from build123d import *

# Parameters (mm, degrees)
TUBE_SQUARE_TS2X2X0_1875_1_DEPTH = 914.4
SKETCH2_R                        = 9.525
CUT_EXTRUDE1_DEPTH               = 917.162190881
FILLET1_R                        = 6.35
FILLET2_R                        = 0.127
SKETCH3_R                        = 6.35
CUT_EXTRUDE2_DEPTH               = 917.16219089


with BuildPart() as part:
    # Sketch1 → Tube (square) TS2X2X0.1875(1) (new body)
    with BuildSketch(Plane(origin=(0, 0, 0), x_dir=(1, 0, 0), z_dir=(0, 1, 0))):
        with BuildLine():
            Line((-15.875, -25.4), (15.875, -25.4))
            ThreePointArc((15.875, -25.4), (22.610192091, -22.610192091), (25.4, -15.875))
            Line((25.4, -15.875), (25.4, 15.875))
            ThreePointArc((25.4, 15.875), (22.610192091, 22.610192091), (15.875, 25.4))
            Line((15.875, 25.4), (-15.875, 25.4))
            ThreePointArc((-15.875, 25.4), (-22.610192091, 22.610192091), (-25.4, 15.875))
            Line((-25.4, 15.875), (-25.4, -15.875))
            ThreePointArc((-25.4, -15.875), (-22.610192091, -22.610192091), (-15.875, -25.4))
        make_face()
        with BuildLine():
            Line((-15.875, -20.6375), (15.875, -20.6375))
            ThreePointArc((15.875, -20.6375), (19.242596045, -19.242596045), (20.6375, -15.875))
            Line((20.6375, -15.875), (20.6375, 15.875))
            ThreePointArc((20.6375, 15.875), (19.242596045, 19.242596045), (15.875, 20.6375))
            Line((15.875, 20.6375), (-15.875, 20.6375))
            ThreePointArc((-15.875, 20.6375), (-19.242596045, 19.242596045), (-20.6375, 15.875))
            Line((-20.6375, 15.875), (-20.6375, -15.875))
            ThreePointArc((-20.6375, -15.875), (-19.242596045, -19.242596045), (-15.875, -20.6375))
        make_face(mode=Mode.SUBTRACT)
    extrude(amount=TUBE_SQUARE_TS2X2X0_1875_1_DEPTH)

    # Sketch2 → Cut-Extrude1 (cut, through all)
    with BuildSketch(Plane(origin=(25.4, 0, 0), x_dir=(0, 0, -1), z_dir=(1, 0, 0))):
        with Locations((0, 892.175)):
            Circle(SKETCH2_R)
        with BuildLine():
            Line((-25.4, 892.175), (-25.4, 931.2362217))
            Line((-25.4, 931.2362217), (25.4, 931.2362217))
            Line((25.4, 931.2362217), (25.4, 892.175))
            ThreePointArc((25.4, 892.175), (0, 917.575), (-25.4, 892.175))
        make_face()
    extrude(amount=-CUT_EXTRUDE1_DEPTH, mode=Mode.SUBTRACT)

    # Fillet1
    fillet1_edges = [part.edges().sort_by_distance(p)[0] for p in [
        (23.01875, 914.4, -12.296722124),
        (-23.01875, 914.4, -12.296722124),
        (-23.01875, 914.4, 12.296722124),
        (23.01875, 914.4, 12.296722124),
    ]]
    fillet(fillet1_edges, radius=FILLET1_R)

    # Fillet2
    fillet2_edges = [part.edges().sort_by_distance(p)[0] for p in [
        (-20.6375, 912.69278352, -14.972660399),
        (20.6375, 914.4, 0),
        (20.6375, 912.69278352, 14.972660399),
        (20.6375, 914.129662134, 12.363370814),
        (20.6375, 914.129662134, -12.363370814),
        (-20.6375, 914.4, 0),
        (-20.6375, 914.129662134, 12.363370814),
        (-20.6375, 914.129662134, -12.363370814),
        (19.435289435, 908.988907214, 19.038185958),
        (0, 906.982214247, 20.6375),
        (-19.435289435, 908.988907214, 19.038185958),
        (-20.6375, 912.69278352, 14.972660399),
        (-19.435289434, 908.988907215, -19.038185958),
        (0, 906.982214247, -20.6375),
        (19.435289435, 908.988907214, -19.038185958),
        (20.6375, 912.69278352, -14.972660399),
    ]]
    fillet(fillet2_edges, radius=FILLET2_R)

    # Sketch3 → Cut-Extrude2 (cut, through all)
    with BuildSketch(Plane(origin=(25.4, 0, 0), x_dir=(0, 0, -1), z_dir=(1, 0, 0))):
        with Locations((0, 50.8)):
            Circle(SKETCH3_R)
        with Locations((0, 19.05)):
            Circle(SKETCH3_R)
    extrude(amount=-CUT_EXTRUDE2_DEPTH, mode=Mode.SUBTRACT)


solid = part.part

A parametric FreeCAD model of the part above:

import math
import FreeCAD as App
import Part
import Sketcher
Q = App.Units.Quantity


def edges_at(feature, points):
    """Names of the edges that pass closest to the given points."""
    edges = feature.Shape.Edges
    near = lambda p: min(range(len(edges)), key=lambda i: edges[i].distToShape(Part.Vertex(*p))[0])
    return sorted({f"Edge{near(p) + 1}" for p in points})

doc = App.newDocument("Part")
body = doc.addObject("PartDesign::Body", "Body")

# Sketch on XZ plane
sketch1 = doc.addObject("Sketcher::SketchObject", "Sketch")
body.addObject(sketch1)
sketch1.AttachmentSupport = (doc.XZ_Plane, [""])
sketch1.MapMode = "FlatFace"
sketch1.addGeometry(Part.LineSegment(App.Vector(-15.875, 25.4, 0), App.Vector(15.875, 25.4, 0)), False)
sketch1.addGeometry(Part.ArcOfCircle(Part.Circle(App.Vector(15.875, 15.875, 0), App.Vector(0, 0, 1), 9.525), math.radians(0), math.radians(90)), False)
sketch1.addGeometry(Part.LineSegment(App.Vector(25.4, 15.875, 0), App.Vector(25.4, -15.875, 0)), False)
sketch1.addGeometry(Part.ArcOfCircle(Part.Circle(App.Vector(15.875, -15.875, 0), App.Vector(0, 0, 1), 9.525), math.radians(-90), math.radians(0)), False)
sketch1.addGeometry(Part.LineSegment(App.Vector(15.875, -25.4, 0), App.Vector(-15.875, -25.4, 0)), False)
sketch1.addGeometry(Part.ArcOfCircle(Part.Circle(App.Vector(-15.875, -15.875, 0), App.Vector(0, 0, 1), 9.525), math.radians(180), math.radians(270)), False)
sketch1.addGeometry(Part.LineSegment(App.Vector(-25.4, -15.875, 0), App.Vector(-25.4, 15.875, 0)), False)
sketch1.addGeometry(Part.ArcOfCircle(Part.Circle(App.Vector(-15.875, 15.875, 0), App.Vector(0, 0, 1), 9.525), math.radians(90), math.radians(180)), False)
sketch1.addGeometry(Part.LineSegment(App.Vector(15.875, 20.6375, 0), App.Vector(-15.875, 20.6375, 0)), False)
sketch1.addGeometry(Part.ArcOfCircle(Part.Circle(App.Vector(-15.875, 15.875, 0), App.Vector(0, 0, 1), 4.7625), math.radians(90), math.radians(180)), False)
sketch1.addGeometry(Part.LineSegment(App.Vector(-20.6375, 15.875, 0), App.Vector(-20.6375, -15.875, 0)), False)
sketch1.addGeometry(Part.ArcOfCircle(Part.Circle(App.Vector(-15.875, -15.875, 0), App.Vector(0, 0, 1), 4.7625), math.radians(-180), math.radians(-90)), False)
sketch1.addGeometry(Part.LineSegment(App.Vector(-15.875, -20.6375, 0), App.Vector(15.875, -20.6375, 0)), False)
sketch1.addGeometry(Part.ArcOfCircle(Part.Circle(App.Vector(15.875, -15.875, 0), App.Vector(0, 0, 1), 4.7625), math.radians(-90), math.radians(0)), False)
sketch1.addGeometry(Part.LineSegment(App.Vector(20.6375, -15.875, 0), App.Vector(20.6375, 15.875, 0)), False)
sketch1.addGeometry(Part.ArcOfCircle(Part.Circle(App.Vector(15.875, 15.875, 0), App.Vector(0, 0, 1), 4.7625), math.radians(0), math.radians(90)), False)
sketch1.addConstraint(Sketcher.Constraint("Tangent", 0, 2, 1, 2))
sketch1.addConstraint(Sketcher.Constraint("Tangent", 1, 1, 2, 1))
sketch1.addConstraint(Sketcher.Constraint("Tangent", 2, 2, 3, 2))
sketch1.addConstraint(Sketcher.Constraint("Tangent", 3, 1, 4, 1))
sketch1.addConstraint(Sketcher.Constraint("Tangent", 4, 2, 5, 2))
sketch1.addConstraint(Sketcher.Constraint("Tangent", 5, 1, 6, 1))
sketch1.addConstraint(Sketcher.Constraint("Tangent", 6, 2, 7, 2))
sketch1.addConstraint(Sketcher.Constraint("Tangent", 7, 1, 0, 1))
sketch1.addConstraint(Sketcher.Constraint("Tangent", 8, 2, 9, 1))
sketch1.addConstraint(Sketcher.Constraint("Tangent", 9, 2, 10, 1))
sketch1.addConstraint(Sketcher.Constraint("Tangent", 10, 2, 11, 1))
sketch1.addConstraint(Sketcher.Constraint("Tangent", 11, 2, 12, 1))
sketch1.addConstraint(Sketcher.Constraint("Tangent", 12, 2, 13, 1))
sketch1.addConstraint(Sketcher.Constraint("Tangent", 13, 2, 14, 1))
sketch1.addConstraint(Sketcher.Constraint("Tangent", 14, 2, 15, 1))
sketch1.addConstraint(Sketcher.Constraint("Tangent", 15, 2, 8, 1))
sketch1.addConstraint(Sketcher.Constraint("Horizontal", 0))
sketch1.addConstraint(Sketcher.Constraint("Vertical", 2))
sketch1.addConstraint(Sketcher.Constraint("Horizontal", 4))
sketch1.addConstraint(Sketcher.Constraint("Vertical", 6))
sketch1.addConstraint(Sketcher.Constraint("Horizontal", 8))
sketch1.addConstraint(Sketcher.Constraint("Vertical", 10))
sketch1.addConstraint(Sketcher.Constraint("Horizontal", 12))
sketch1.addConstraint(Sketcher.Constraint("Vertical", 14))
sketch1.addConstraint(Sketcher.Constraint("Coincident", 9, 3, 7, 3))
sketch1.addConstraint(Sketcher.Constraint("Coincident", 11, 3, 5, 3))
sketch1.addConstraint(Sketcher.Constraint("Coincident", 13, 3, 3, 3))
sketch1.addConstraint(Sketcher.Constraint("Equal", 1, 3))
sketch1.addConstraint(Sketcher.Constraint("Equal", 3, 5))
sketch1.addConstraint(Sketcher.Constraint("Equal", 5, 7))
sketch1.addConstraint(Sketcher.Constraint("Equal", 13, 15))
sketch1.addConstraint(Sketcher.Constraint("Symmetric", 1, 3, 5, 3, -1, 1))
sketch1.addConstraint(Sketcher.Constraint("Equal", 12, 2))
sketch1.addConstraint(Sketcher.Constraint("DistanceY", -1, 1, 0, 2, Q("1 in")))
sketch1.addConstraint(Sketcher.Constraint("Radius", 1, Q("0.375 in")))
sketch1.addConstraint(Sketcher.Constraint("Radius", 9, Q("0.1875 in")))
pad1 = doc.addObject("PartDesign::Pad", "Pad")
body.addObject(pad1)
pad1.Profile = sketch1
pad1.Length = Q("36 in")
pad1.Reversed = True

# Sketch on YZ plane
sketch2 = doc.addObject("Sketcher::SketchObject", "Sketch001")
body.addObject(sketch2)
sketch2.AttachmentSupport = (doc.YZ_Plane, [""])
sketch2.MapMode = "FlatFace"
sketch2.AttachmentOffset = App.Placement(App.Vector(0, 0, 1 * 25.4), App.Rotation())
sketch2.addGeometry(Part.Circle(App.Vector(892.175, 0, 0), App.Vector(0, 0, 1), 9.525), False)
sketch2.addGeometry(Part.LineSegment(App.Vector(931.236222, 25.4, 0), App.Vector(892.175, 25.4, 0)), False)
sketch2.addGeometry(Part.ArcOfCircle(Part.Circle(App.Vector(892.175, 0, 0), App.Vector(0, 0, 1), 25.4), math.radians(-90), math.radians(90)), False)
sketch2.addGeometry(Part.LineSegment(App.Vector(892.175, -25.4, 0), App.Vector(931.236222, -25.4, 0)), False)
sketch2.addGeometry(Part.LineSegment(App.Vector(931.236222, -25.4, 0), App.Vector(931.236222, 25.4, 0)), False)
sketch2.addConstraint(Sketcher.Constraint("Tangent", 1, 2, 2, 2))
sketch2.addConstraint(Sketcher.Constraint("Tangent", 2, 1, 3, 1))
sketch2.addConstraint(Sketcher.Constraint("Coincident", 3, 2, 4, 1))
sketch2.addConstraint(Sketcher.Constraint("Coincident", 4, 2, 1, 1))
sketch2.addConstraint(Sketcher.Constraint("Horizontal", 1))
sketch2.addConstraint(Sketcher.Constraint("Horizontal", 3))
sketch2.addConstraint(Sketcher.Constraint("Vertical", 4))
sketch2.addConstraint(Sketcher.Constraint("Coincident", 2, 3, 0, 3))
sketch2.addConstraint(Sketcher.Constraint("PointOnObject", 0, 3, -1))
sketch2.addConstraint(Sketcher.Constraint("Radius", 2, Q("1 in")))
sketch2.addConstraint(Sketcher.Constraint("Diameter", 0, Q("0.75 in")))
sketch2.addConstraint(Sketcher.Constraint("DistanceX", -1, 1, 0, 3, Q("35.125 in")))
sketch2.addConstraint(Sketcher.Constraint("DistanceX", 1, 2, 1, 1, Q("39.061222 mm")))
pocket1 = doc.addObject("PartDesign::Pocket", "Pocket")
body.addObject(pocket1)
pocket1.Profile = sketch2
pocket1.Type = "ThroughAll"
doc.recompute()

fillet = doc.addObject("PartDesign::Fillet", "Fillet")
body.addObject(fillet)
fillet.Base = (pocket1, edges_at(pocket1, [
    (23.019, 914.4, -12.297),
    (-23.019, 914.4, -12.297),
    (-23.019, 914.4, 12.297),
    (23.019, 914.4, 12.297),
]))
fillet.Radius = Q("0.25 in")
doc.recompute()

fillet2 = doc.addObject("PartDesign::Fillet", "Fillet001")
body.addObject(fillet2)
fillet2.Base = (fillet, edges_at(fillet, [
    (-20.637, 912.693, -14.973),
    (20.637, 914.4, 0),
    (20.637, 912.693, 14.973),
    (20.637, 914.13, 12.363),
    (20.637, 914.13, -12.363),
    (-20.637, 914.4, 0),
    (-20.637, 914.13, 12.363),
    (-20.637, 914.13, -12.363),
    (19.435, 908.989, 19.038),
    (0, 906.982, 20.637),
    (-19.435, 908.989, 19.038),
    (-20.637, 912.693, 14.973),
    (-19.435, 908.989, -19.038),
    (0, 906.982, -20.637),
    (19.435, 908.989, -19.038),
    (20.637, 912.693, -14.973),
]))
fillet2.Radius = Q("0.005 in")

# Sketch on YZ plane
sketch3 = doc.addObject("Sketcher::SketchObject", "Sketch002")
body.addObject(sketch3)
sketch3.AttachmentSupport = (doc.YZ_Plane, [""])
sketch3.MapMode = "FlatFace"
sketch3.AttachmentOffset = App.Placement(App.Vector(0, 0, 1 * 25.4), App.Rotation())
sketch3.addGeometry(Part.Circle(App.Vector(50.8, 0, 0), App.Vector(0, 0, 1), 6.35), False)
sketch3.addGeometry(Part.Circle(App.Vector(19.05, 0, 0), App.Vector(0, 0, 1), 6.35), False)
sketch3.addConstraint(Sketcher.Constraint("Equal", 0, 1))
sketch3.addConstraint(Sketcher.Constraint("PointOnObject", 0, 3, -1))
sketch3.addConstraint(Sketcher.Constraint("PointOnObject", 1, 3, -1))
sketch3.addConstraint(Sketcher.Constraint("Diameter", 0, Q("0.5 in")))
sketch3.addConstraint(Sketcher.Constraint("DistanceX", -1, 1, 0, 3, Q("2 in")))
sketch3.addConstraint(Sketcher.Constraint("DistanceX", -1, 1, 1, 3, Q("0.75 in")))
pocket2 = doc.addObject("PartDesign::Pocket", "Pocket001")
body.addObject(pocket2)
pocket2.Profile = sketch3
pocket2.Type = "ThroughAll"

doc.recompute()
